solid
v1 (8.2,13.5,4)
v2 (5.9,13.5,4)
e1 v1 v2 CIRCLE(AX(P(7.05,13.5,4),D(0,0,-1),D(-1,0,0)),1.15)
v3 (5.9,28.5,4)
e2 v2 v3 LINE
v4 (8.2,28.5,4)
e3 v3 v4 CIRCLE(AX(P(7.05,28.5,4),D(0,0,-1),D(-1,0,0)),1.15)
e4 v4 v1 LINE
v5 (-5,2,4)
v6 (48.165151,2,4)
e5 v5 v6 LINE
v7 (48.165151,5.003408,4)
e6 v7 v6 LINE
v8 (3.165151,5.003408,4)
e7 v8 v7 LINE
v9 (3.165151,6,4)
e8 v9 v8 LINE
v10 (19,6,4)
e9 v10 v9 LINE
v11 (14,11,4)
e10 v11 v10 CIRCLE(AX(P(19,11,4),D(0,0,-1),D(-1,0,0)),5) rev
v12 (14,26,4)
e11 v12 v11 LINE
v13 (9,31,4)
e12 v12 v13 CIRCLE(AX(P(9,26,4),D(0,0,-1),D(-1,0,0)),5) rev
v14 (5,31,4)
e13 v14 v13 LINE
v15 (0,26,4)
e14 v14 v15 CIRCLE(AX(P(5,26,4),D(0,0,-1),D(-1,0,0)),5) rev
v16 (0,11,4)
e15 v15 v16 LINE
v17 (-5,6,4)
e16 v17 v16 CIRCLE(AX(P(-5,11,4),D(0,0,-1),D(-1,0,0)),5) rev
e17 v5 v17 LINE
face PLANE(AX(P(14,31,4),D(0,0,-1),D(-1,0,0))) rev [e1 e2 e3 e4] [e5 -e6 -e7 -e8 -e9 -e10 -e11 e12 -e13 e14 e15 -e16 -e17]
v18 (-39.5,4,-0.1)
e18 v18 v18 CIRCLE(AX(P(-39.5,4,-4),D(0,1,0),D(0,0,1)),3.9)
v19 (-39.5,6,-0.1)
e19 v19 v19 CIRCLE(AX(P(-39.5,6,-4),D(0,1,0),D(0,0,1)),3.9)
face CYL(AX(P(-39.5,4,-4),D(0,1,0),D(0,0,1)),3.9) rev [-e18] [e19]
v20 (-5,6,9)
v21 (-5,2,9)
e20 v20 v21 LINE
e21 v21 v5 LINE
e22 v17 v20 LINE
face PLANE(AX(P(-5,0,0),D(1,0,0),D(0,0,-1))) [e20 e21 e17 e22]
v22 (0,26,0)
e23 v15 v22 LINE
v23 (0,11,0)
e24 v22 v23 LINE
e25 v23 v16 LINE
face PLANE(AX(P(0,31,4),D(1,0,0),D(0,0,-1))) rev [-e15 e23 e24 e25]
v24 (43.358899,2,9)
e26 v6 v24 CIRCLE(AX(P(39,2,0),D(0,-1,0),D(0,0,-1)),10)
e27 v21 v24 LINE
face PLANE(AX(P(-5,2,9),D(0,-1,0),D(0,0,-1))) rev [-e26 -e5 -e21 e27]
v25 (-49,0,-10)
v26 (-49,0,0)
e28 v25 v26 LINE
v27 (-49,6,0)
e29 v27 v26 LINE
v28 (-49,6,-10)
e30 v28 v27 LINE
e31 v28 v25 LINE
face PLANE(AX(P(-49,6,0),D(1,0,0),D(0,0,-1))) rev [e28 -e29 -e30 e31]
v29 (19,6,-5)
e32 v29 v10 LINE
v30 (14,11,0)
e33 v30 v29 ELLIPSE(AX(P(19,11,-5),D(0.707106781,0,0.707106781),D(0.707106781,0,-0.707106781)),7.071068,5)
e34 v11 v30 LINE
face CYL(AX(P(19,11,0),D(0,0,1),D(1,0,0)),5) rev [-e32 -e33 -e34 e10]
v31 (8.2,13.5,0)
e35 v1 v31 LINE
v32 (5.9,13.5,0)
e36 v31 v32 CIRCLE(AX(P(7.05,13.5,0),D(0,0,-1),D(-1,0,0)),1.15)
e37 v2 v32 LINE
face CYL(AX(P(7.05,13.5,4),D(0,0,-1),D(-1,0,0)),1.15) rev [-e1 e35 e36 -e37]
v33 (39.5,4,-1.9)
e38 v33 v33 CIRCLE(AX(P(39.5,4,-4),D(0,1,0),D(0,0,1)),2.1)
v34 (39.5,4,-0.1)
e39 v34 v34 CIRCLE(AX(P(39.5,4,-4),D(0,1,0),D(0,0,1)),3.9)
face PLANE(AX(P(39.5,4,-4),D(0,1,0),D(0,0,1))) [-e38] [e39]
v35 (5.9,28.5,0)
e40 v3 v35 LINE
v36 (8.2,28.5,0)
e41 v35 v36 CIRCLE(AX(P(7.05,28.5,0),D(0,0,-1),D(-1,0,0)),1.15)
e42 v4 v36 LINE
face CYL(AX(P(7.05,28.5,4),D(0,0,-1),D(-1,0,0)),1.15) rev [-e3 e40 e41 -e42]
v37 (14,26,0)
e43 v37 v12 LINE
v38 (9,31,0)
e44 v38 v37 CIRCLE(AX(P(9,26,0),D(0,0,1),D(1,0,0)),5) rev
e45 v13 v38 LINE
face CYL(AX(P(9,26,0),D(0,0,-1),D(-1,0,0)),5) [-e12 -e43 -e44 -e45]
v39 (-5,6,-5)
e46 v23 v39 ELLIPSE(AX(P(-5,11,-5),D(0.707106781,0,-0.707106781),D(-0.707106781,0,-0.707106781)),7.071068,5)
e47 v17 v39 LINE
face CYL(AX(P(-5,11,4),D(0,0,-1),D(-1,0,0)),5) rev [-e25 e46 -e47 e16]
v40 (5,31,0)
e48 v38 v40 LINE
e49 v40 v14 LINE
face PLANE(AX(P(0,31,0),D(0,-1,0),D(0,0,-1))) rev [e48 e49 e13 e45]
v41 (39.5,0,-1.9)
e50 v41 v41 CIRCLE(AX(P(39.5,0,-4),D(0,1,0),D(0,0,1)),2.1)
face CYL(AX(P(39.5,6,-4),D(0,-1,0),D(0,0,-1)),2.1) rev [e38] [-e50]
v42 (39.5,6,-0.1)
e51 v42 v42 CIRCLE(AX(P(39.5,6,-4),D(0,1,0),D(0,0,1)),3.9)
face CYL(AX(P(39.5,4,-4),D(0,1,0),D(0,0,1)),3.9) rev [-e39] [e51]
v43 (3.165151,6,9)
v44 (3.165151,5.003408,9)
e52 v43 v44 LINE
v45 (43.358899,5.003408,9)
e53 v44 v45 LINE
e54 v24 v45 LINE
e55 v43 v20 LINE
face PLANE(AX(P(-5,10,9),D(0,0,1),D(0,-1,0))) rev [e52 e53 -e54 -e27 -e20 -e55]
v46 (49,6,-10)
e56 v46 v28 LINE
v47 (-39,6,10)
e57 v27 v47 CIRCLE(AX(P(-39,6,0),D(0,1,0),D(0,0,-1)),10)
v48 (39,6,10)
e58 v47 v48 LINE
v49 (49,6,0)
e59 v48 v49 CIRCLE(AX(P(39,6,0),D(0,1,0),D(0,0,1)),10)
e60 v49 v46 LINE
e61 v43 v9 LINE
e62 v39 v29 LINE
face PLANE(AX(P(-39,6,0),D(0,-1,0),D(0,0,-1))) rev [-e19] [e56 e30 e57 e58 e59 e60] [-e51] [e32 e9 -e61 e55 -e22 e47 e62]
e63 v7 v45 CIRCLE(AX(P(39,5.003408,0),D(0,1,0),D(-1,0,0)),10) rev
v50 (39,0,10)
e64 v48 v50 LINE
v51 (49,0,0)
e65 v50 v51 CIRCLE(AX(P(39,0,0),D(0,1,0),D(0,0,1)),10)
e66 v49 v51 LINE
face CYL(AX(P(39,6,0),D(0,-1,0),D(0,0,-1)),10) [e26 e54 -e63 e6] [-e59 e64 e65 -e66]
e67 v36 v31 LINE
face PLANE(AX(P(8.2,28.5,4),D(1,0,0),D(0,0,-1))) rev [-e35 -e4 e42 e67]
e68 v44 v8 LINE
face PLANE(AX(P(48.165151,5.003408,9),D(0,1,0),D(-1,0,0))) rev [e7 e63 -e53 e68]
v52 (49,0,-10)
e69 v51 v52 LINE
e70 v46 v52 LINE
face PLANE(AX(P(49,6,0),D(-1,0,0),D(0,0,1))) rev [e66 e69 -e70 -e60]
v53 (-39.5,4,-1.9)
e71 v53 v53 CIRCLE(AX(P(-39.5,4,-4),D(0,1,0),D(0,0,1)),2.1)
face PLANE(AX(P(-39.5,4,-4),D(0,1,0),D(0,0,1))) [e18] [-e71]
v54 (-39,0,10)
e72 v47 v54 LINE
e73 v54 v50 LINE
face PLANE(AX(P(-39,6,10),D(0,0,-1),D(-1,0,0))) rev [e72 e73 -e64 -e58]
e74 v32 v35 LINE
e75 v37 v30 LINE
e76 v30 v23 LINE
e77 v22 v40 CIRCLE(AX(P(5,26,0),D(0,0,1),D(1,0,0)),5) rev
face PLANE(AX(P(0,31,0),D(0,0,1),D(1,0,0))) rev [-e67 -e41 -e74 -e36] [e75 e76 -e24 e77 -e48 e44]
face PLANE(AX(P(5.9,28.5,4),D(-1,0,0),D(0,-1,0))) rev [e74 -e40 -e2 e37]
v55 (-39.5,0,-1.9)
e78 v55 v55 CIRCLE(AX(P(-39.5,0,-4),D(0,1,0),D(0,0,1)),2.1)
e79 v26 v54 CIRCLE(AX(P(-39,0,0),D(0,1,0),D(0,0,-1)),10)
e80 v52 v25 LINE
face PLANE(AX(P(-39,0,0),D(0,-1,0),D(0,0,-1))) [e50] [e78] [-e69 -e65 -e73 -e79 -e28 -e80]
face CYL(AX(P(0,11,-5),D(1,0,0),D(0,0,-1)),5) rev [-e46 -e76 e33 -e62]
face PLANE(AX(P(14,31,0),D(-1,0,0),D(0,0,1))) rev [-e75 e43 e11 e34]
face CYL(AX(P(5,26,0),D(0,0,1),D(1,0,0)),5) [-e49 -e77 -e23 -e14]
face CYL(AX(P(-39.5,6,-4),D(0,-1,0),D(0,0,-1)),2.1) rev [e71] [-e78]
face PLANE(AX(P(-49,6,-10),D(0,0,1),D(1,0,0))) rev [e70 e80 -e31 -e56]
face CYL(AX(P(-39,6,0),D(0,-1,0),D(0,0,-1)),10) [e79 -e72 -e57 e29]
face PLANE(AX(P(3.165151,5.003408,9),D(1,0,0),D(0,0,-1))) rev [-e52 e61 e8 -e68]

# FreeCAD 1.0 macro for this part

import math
import FreeCAD as App
import Part
import Sketcher

V = App.Vector
Q = App.Units.Quantity


def edges_at(feature, points):
    """Names of the edges that pass closest to the given points."""
    edges = feature.Shape.Edges
    near = lambda p: min(range(len(edges)), key=lambda i: edges[i].distToShape(Part.Vertex(*p))[0])
    return sorted({f"Edge{near(p) + 1}" for p in points})

doc = App.newDocument("Part")
body = doc.addObject("PartDesign::Body", "Body")

# Sketch on XZ plane
sketch1 = body.newObject("Sketcher::SketchObject", "Sketch")
sketch1.AttachmentSupport = (doc.getObject("XZ_Plane"), [""])
sketch1.MapMode = "FlatFace"
sketch1.addGeometry([
    Part.LineSegment(V(-39, 10, 0), V(39, 10, 0)),  # 0
    Part.ArcOfCircle(Part.Circle(V(39, 0, 0), V(0, 0, 1), 10), math.radians(0), math.radians(90)),  # 1
    Part.LineSegment(V(49, 0, 0), V(49, -10, 0)),  # 2
    Part.LineSegment(V(49, -10, 0), V(-49, -10, 0)),  # 3
    Part.LineSegment(V(-49, -10, 0), V(-49, 0, 0)),  # 4
    Part.ArcOfCircle(Part.Circle(V(-39, 0, 0), V(0, 0, 1), 10), math.radians(90), math.radians(180)),  # 5
    Part.Circle(V(-39.5, -4, 0), V(0, 0, 1), 2.1),  # 6
    Part.Circle(V(39.5, -4, 0), V(0, 0, 1), 2.1),  # 7
], False)
sketch1.addConstraint([
    Sketcher.Constraint("Tangent", 0, 2, 1, 2),
    Sketcher.Constraint("Tangent", 1, 1, 2, 1),
    Sketcher.Constraint("Coincident", 2, 2, 3, 1),
    Sketcher.Constraint("Coincident", 3, 2, 4, 1),
    Sketcher.Constraint("Tangent", 4, 2, 5, 2),
    Sketcher.Constraint("Tangent", 5, 1, 0, 1),
    Sketcher.Constraint("Horizontal", 0),
    Sketcher.Constraint("Vertical", 2),
    Sketcher.Constraint("Horizontal", 3),
    Sketcher.Constraint("Vertical", 4),
    Sketcher.Constraint("Equal", 1, 5),
    Sketcher.Constraint("Equal", 6, 7),
    Sketcher.Constraint("Symmetric", 1, 3, 5, 3, -1, 1),
    Sketcher.Constraint("Symmetric", 6, 3, 7, 3, -2),
    Sketcher.Constraint("Radius", 1, Q("10 mm")),
    Sketcher.Constraint("Diameter", 6, Q("4.2 mm")),
    Sketcher.Constraint("DistanceX", 0, 1, 0, 2, Q("78 mm")),
    Sketcher.Constraint("DistanceY", 2, 2, 2, 1, Q("10 mm")),
    Sketcher.Constraint("DistanceY", 6, 3, -1, 1, Q("4 mm")),
    Sketcher.Constraint("DistanceX", 6, 3, 7, 3, Q("79 mm")),
])
pad1 = body.newObject("PartDesign::Pad", "Pad")
pad1.Profile = sketch1
pad1.Length = 6
pad1.Reversed = True

# Sketch on XZ plane
sketch2 = body.newObject("Sketcher::SketchObject", "Sketch001")
sketch2.AttachmentSupport = (doc.getObject("XZ_Plane"), [""])
sketch2.MapMode = "FlatFace"
sketch2.AttachmentOffset = App.Placement(V(0, 0, -6), App.Rotation())
sketch2.addGeometry([
    Part.Circle(V(39.5, -4, 0), V(0, 0, 1), 3.9),
    Part.Circle(V(-39.5, -4, 0), V(0, 0, 1), 3.9),
], False)
sketch2.addConstraint([
    Sketcher.Constraint("Equal", 0, 1),
    Sketcher.Constraint("Symmetric", 0, 3, 1, 3, -2),
    Sketcher.Constraint("Diameter", 0, Q("7.8 mm")),
    Sketcher.Constraint("DistanceY", 0, 3, -1, 1, Q("4 mm")),
    Sketcher.Constraint("DistanceX", 1, 3, 0, 3, Q("79 mm")),
])
pocket1 = body.newObject("PartDesign::Pocket", "Pocket")
pocket1.Profile = sketch2
pocket1.Length = 2
pocket1.Reversed = True

# Sketch on XZ plane
sketch3 = body.newObject("Sketcher::SketchObject", "Sketch002")
sketch3.AttachmentSupport = (doc.getObject("XZ_Plane"), [""])
sketch3.MapMode = "FlatFace"
sketch3.AttachmentOffset = App.Placement(V(0, 0, -6), App.Rotation())
sketch3.addGeometry([
    Part.LineSegment(V(0, 0, 0), V(0, 4, 0)),
    Part.LineSegment(V(0, 4, 0), V(14, 4, 0)),
    Part.LineSegment(V(14, 4, 0), V(14, 0, 0)),
    Part.LineSegment(V(14, 0, 0), V(0, 0, 0)),
], False)
sketch3.addConstraint([
    Sketcher.Constraint("Coincident", 0, 2, 1, 1),
    Sketcher.Constraint("Coincident", 1, 2, 2, 1),
    Sketcher.Constraint("Coincident", 2, 2, 3, 1),
    Sketcher.Constraint("Coincident", 3, 2, 0, 1),
    Sketcher.Constraint("Vertical", 0),
    Sketcher.Constraint("Horizontal", 1),
    Sketcher.Constraint("Vertical", 2),
    Sketcher.Constraint("Horizontal", 3),
    Sketcher.Constraint("Coincident", 3, 2, -1, 1),
    Sketcher.Constraint("DistanceX", 1, 1, 1, 2, Q("14 mm")),
    Sketcher.Constraint("DistanceY", 0, 1, 0, 2, Q("4 mm")),
])
pad2 = body.newObject("PartDesign::Pad", "Pad001")
pad2.Profile = sketch3
pad2.Length = 25
pad2.Reversed = True
doc.recompute()

fillet = body.newObject("PartDesign::Fillet", "Fillet")
fillet.Base = (pad2, edges_at(pad2, [(7, 6, 0), (0, 6, 2), (14, 6, 2)]))
fillet.Radius = 5

# Sketch on XY plane
sketch4 = body.newObject("Sketcher::SketchObject", "Sketch003")
sketch4.AttachmentSupport = (doc.getObject("XY_Plane"), [""])
sketch4.MapMode = "FlatFace"
sketch4.addGeometry([
    Part.LineSegment(V(5.9, 13.5, 0), V(5.9, 28.5, 0)),
    Part.ArcOfCircle(Part.Circle(V(7, 28.5, 0), V(0, 0, 1), 1.1), math.radians(0), math.radians(180)),
    Part.LineSegment(V(8.2, 28.5, 0), V(8.2, 13.5, 0)),
    Part.ArcOfCircle(Part.Circle(V(7, 13.5, 0), V(0, 0, 1), 1.1), math.radians(180), math.radians(360)),
], False)
sketch4.addConstraint([
    Sketcher.Constraint("Tangent", 0, 2, 1, 2),
    Sketcher.Constraint("Tangent", 1, 1, 2, 1),
    Sketcher.Constraint("Tangent", 2, 2, 3, 2),
    Sketcher.Constraint("Tangent", 3, 1, 0, 1),
    Sketcher.Constraint("Vertical", 0),
    Sketcher.Constraint("Vertical", 2),
    Sketcher.Constraint("DistanceY", 0, 1, 0, 2, Q("15 mm")),
    Sketcher.Constraint("Radius", 1, Q("1.15 mm")),
    Sketcher.Constraint("DistanceY", -1, 1, 1, 3, Q("28.5 mm")),
    Sketcher.Constraint("DistanceX", -1, 1, 0, 2, Q("5.9 mm")),
])
pocket2 = body.newObject("PartDesign::Pocket", "Pocket001")
pocket2.Profile = sketch4
pocket2.Length = 4
pocket2.Reversed = True
doc.recompute()

fillet2 = body.newObject("PartDesign::Fillet", "Fillet001")
fillet2.Base = (pocket2, edges_at(pocket2, [(14, 31, 2)]))
fillet2.Radius = 5
doc.recompute()

fillet3 = body.newObject("PartDesign::Fillet", "Fillet002")
fillet3.Base = (fillet2, edges_at(fillet2, [(0, 31, 2)]))
fillet3.Radius = 5

# Sketch on YZ plane
sketch5 = body.newObject("Sketcher::SketchObject", "Sketch004")
sketch5.AttachmentSupport = (doc.getObject("YZ_Plane"), [""])
sketch5.MapMode = "FlatFace"
sketch5.AttachmentOffset = App.Placement(V(0, 0, 49), App.Rotation())
sketch5.addGeometry([
    Part.LineSegment(V(10, 9, 0), V(2, 9, 0)),
    Part.LineSegment(V(2, 9, 0), V(2, 4, 0)),
    Part.LineSegment(V(2, 4, 0), V(10, 4, 0)),
    Part.LineSegment(V(10, 4, 0), V(10, 9, 0)),
], False)
sketch5.addConstraint([
    Sketcher.Constraint("Coincident", 0, 2, 1, 1),
    Sketcher.Constraint("Coincident", 1, 2, 2, 1),
    Sketcher.Constraint("Coincident", 2, 2, 3, 1),
    Sketcher.Constraint("Coincident", 3, 2, 0, 1),
    Sketcher.Constraint("Horizontal", 0),
    Sketcher.Constraint("Vertical", 1),
    Sketcher.Constraint("Horizontal", 2),
    Sketcher.Constraint("Vertical", 3),
    Sketcher.Constraint("DistanceX", 0, 2, 0, 1, Q("8 mm")),
    Sketcher.Constraint("DistanceY", 1, 2, 1, 1, Q("5 mm")),
    Sketcher.Constraint("DistanceX", -1, 1, 0, 2, Q("2 mm")),
    Sketcher.Constraint("DistanceY", -1, 1, 0, 2, Q("9 mm")),
])
pocket3 = body.newObject("PartDesign::Pocket", "Pocket002")
pocket3.Profile = sketch5
pocket3.Length = 54

# Sketch on XY plane
sketch6 = body.newObject("Sketcher::SketchObject", "Sketch005")
sketch6.AttachmentSupport = (doc.getObject("XY_Plane"), [""])
sketch6.MapMode = "FlatFace"
sketch6.AttachmentOffset = App.Placement(V(0, 0, 4), App.Rotation())
sketch6.addGeometry([
    Part.LineSegment(V(3.2, 6, 0), V(3.2, 5, 0)),
    Part.LineSegment(V(3.2, 5, 0), V(48.2, 5, 0)),
    Part.LineSegment(V(48.2, 5, 0), V(48.2, 6, 0)),
    Part.LineSegment(V(48.2, 6, 0), V(3.2, 6, 0)),
], False)
sketch6.addConstraint([
    Sketcher.Constraint("Coincident", 0, 2, 1, 1),
    Sketcher.Constraint("Coincident", 1, 2, 2, 1),
    Sketcher.Constraint("Coincident", 2, 2, 3, 1),
    Sketcher.Constraint("Coincident", 3, 2, 0, 1),
    Sketcher.Constraint("Vertical", 0),
    Sketcher.Constraint("Horizontal", 1),
    Sketcher.Constraint("Vertical", 2),
    Sketcher.Constraint("Horizontal", 3),
    Sketcher.Constraint("DistanceX", 1, 1, 1, 2, Q("45 mm")),
    Sketcher.Constraint("DistanceY", -1, 1, 2, 2, Q("6 mm")),
    Sketcher.Constraint("DistanceY", 0, 2, 0, 1, Q("0.996592 mm")),
    Sketcher.Constraint("DistanceX", -1, 1, 0, 2, Q("3.165151 mm")),
])
pad3 = body.newObject("PartDesign::Pad", "Pad002")
pad3.Profile = sketch6
pad3.Length = 5

# Sketch on XZ plane
sketch7 = body.newObject("Sketcher::SketchObject", "Sketch006")
sketch7.AttachmentSupport = (doc.getObject("XZ_Plane"), [""])
sketch7.MapMode = "FlatFace"
sketch7.AttachmentOffset = App.Placement(V(0, 0, -1), App.Rotation())
sketch7.addGeometry([
    Part.LineSegment(V(57.1, -10, 0), V(49, -10, 0)),  # 0
    Part.LineSegment(V(49, -10, 0), V(49, 0, 0)),  # 1
    Part.ArcOfCircle(Part.Circle(V(39, 0, 0), V(0, 0, 1), 10), math.radians(0), math.radians(90)),  # 2
    Part.LineSegment(V(39, 10, 0), V(14, 10, 0)),  # 3
    Part.LineSegment(V(14, 10, 0), V(14, 12.6, 0)),  # 4
    Part.LineSegment(V(14, 12.6, 0), V(57.7, 14.1, 0)),  # 5
    Part.LineSegment(V(57.7, 14.1, 0), V(57.1, -10, 0)),  # 6
], False)
sketch7.addConstraint([
    Sketcher.Constraint("Coincident", 0, 2, 1, 1),
    Sketcher.Constraint("Tangent", 1, 2, 2, 1),
    Sketcher.Constraint("Tangent", 2, 2, 3, 1),
    Sketcher.Constraint("Coincident", 3, 2, 4, 1),
    Sketcher.Constraint("Coincident", 4, 2, 5, 1),
    Sketcher.Constraint("Coincident", 5, 2, 6, 1),
    Sketcher.Constraint("Coincident", 6, 2, 0, 1),
    Sketcher.Constraint("Horizontal", 0),
    Sketcher.Constraint("Vertical", 1),
    Sketcher.Constraint("Horizontal", 3),
    Sketcher.Constraint("Vertical", 4),
    Sketcher.Constraint("PointOnObject", 2, 3, -1),
    Sketcher.Constraint("Radius", 2, Q("10 mm")),
    Sketcher.Constraint("DistanceX", 3, 2, 3, 1, Q("25 mm")),
    Sketcher.Constraint("DistanceY", 1, 1, 1, 2, Q("10 mm")),
    Sketcher.Constraint("DistanceX", -1, 1, 2, 3, Q("39 mm")),
    Sketcher.Constraint("DistanceX", 0, 2, 0, 1, Q("8.14023 mm")),
    Sketcher.Constraint("DistanceY", 4, 1, 4, 2, Q("2.561196 mm")),
    Sketcher.Constraint("DistanceX", -1, 1, 5, 2, Q("57.73794 mm")),
    Sketcher.Constraint("DistanceY", 4, 2, 5, 2, Q("1.505288 mm")),
])
pocket4 = body.newObject("PartDesign::Pocket", "Pocket003")
pocket4.Profile = sketch7
pocket4.Length = 5

doc.recompute()
